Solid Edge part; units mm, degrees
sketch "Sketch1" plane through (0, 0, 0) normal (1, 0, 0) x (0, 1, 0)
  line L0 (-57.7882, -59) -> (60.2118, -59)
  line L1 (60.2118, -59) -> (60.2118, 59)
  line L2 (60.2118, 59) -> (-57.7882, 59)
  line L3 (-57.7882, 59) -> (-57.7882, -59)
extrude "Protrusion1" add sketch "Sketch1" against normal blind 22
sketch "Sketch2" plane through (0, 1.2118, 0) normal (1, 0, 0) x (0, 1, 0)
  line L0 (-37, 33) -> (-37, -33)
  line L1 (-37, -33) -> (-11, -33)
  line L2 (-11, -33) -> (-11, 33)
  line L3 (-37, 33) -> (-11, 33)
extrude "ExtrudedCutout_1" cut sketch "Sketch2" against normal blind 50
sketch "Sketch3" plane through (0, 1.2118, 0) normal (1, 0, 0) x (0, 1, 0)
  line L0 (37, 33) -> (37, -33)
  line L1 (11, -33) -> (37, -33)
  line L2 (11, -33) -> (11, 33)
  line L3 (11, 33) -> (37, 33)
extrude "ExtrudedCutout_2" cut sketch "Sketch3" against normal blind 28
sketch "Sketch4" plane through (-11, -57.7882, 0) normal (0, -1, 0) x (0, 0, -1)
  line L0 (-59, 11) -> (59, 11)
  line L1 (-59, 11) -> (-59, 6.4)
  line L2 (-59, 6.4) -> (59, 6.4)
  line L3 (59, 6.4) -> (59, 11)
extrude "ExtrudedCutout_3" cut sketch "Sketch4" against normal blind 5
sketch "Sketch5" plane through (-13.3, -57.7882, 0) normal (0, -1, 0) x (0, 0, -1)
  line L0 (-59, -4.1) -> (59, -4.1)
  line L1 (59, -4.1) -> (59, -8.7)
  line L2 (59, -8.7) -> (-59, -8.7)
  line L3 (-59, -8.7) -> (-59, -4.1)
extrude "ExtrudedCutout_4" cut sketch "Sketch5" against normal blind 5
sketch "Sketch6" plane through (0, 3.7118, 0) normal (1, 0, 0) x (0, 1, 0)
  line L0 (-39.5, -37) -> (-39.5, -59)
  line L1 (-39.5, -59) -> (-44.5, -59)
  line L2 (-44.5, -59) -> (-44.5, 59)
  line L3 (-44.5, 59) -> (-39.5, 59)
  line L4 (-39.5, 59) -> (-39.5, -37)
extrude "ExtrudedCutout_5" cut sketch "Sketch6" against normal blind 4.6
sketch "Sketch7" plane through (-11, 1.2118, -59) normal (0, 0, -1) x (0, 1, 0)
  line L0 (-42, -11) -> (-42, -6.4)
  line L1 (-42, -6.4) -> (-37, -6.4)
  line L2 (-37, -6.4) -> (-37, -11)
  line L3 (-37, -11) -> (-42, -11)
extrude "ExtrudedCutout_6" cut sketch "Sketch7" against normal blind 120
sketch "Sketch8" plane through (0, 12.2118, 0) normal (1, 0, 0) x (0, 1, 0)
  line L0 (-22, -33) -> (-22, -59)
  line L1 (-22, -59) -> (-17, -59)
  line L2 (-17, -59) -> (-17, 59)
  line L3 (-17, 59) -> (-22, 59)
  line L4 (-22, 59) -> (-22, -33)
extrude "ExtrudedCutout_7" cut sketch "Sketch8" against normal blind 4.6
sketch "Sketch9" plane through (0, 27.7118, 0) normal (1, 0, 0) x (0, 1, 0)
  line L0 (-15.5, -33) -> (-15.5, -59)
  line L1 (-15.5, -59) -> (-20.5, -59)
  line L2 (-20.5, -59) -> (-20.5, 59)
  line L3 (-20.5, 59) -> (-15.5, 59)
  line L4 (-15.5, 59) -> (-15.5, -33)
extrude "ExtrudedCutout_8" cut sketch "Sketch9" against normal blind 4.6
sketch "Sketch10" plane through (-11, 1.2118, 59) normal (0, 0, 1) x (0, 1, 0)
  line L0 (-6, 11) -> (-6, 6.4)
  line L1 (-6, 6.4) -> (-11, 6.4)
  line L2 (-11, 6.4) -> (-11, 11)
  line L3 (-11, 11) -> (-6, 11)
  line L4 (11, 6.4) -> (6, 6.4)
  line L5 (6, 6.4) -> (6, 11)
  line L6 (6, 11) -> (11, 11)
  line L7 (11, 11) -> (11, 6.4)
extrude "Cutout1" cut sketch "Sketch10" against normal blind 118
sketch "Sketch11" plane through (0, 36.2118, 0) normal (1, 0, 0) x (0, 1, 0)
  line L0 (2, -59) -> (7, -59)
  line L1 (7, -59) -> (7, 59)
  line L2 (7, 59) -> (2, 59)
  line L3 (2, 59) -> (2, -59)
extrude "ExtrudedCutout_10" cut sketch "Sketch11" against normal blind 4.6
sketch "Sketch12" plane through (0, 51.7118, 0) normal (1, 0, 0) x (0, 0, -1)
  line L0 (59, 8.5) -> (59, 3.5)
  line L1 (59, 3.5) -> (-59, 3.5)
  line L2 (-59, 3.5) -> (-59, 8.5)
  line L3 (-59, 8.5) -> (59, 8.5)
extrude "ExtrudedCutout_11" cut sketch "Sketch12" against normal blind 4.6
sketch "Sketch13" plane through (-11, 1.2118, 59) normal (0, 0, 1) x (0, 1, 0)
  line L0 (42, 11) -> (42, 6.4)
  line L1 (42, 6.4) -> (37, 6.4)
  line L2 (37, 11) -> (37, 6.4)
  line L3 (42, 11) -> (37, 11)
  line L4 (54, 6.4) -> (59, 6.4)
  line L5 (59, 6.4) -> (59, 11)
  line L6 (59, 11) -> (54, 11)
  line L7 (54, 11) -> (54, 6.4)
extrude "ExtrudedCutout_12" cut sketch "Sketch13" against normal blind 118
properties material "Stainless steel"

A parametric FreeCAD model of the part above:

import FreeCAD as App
import Part
import Sketcher

doc = App.newDocument("Part")
body = doc.addObject("PartDesign::Body", "Body")

sketch1 = body.newObject("Sketcher::SketchObject", "Sketch")
sketch1.AttachmentSupport = (doc.getObject("YZ_Plane"), [""])
sketch1.MapMode = "FlatFace"
sketch1.addGeometry([
    Part.LineSegment(App.Vector(-58, 59, 0), App.Vector(-58, -59, 0)),
    Part.LineSegment(App.Vector(-58, -59, 0), App.Vector(60, -59, 0)),
    Part.LineSegment(App.Vector(60, -59, 0), App.Vector(60, 59, 0)),
    Part.LineSegment(App.Vector(60, 59, 0), App.Vector(-58, 59, 0)),
], False)
sketch1.addConstraint([
    Sketcher.Constraint("Coincident", 0, 2, 1, 1),
    Sketcher.Constraint("Coincident", 1, 2, 2, 1),
    Sketcher.Constraint("Coincident", 2, 2, 3, 1),
    Sketcher.Constraint("Coincident", 3, 2, 0, 1),
    Sketcher.Constraint("Vertical", 0),
    Sketcher.Constraint("Horizontal", 1),
    Sketcher.Constraint("Vertical", 2),
    Sketcher.Constraint("Horizontal", 3),
    Sketcher.Constraint("Equal", 3, 0),
    Sketcher.Constraint("DistanceX", 1, 1, 1, 2, 118.0),
    Sketcher.Constraint("DistanceY", 0, 2, -1, 1, 59.0),
    Sketcher.Constraint("DistanceX", 0, 2, -1, 1, 57.7882),
])
pad1 = body.newObject("PartDesign::Pad", "Pad")
pad1.Profile = sketch1
pad1.Length = 22
pad1.Reversed = True

sketch2 = body.newObject("Sketcher::SketchObject", "Sketch001")
sketch2.AttachmentSupport = (doc.getObject("YZ_Plane"), [""])
sketch2.MapMode = "FlatFace"
sketch2.addGeometry([
    Part.LineSegment(App.Vector(-10, 33, 0), App.Vector(-36, 33, 0)),
    Part.LineSegment(App.Vector(-36, 33, 0), App.Vector(-36, -33, 0)),
    Part.LineSegment(App.Vector(-36, -33, 0), App.Vector(-10, -33, 0)),
    Part.LineSegment(App.Vector(-10, -33, 0), App.Vector(-10, 33, 0)),
], False)
sketch2.addConstraint([
    Sketcher.Constraint("Coincident", 0, 2, 1, 1),
    Sketcher.Constraint("Coincident", 1, 2, 2, 1),
    Sketcher.Constraint("Coincident", 2, 2, 3, 1),
    Sketcher.Constraint("Coincident", 3, 2, 0, 1),
    Sketcher.Constraint("Horizontal", 0),
    Sketcher.Constraint("Vertical", 1),
    Sketcher.Constraint("Horizontal", 2),
    Sketcher.Constraint("Vertical", 3),
    Sketcher.Constraint("DistanceX", 0, 2, 0, 1, 26.0),
    Sketcher.Constraint("DistanceY", 1, 2, 1, 1, 66.0),
    Sketcher.Constraint("DistanceY", -1, 1, 0, 2, 33.0),
    Sketcher.Constraint("DistanceX", 0, 2, -1, 1, 35.7882),
])
pocket1 = body.newObject("PartDesign::Pocket", "Pocket")
pocket1.Profile = sketch2
pocket1.Length = 50

sketch3 = body.newObject("Sketcher::SketchObject", "Sketch002")
sketch3.AttachmentSupport = (doc.getObject("YZ_Plane"), [""])
sketch3.MapMode = "FlatFace"
sketch3.addGeometry([
    Part.LineSegment(App.Vector(38, -33, 0), App.Vector(38, 33, 0)),
    Part.LineSegment(App.Vector(38, 33, 0), App.Vector(12, 33, 0)),
    Part.LineSegment(App.Vector(12, 33, 0), App.Vector(12, -33, 0)),
    Part.LineSegment(App.Vector(12, -33, 0), App.Vector(38, -33, 0)),
], False)
sketch3.addConstraint([
    Sketcher.Constraint("Coincident", 0, 2, 1, 1),
    Sketcher.Constraint("Coincident", 1, 2, 2, 1),
    Sketcher.Constraint("Coincident", 2, 2, 3, 1),
    Sketcher.Constraint("Coincident", 3, 2, 0, 1),
    Sketcher.Constraint("Vertical", 0),
    Sketcher.Constraint("Horizontal", 1),
    Sketcher.Constraint("Vertical", 2),
    Sketcher.Constraint("Horizontal", 3),
    Sketcher.Constraint("DistanceX", 1, 2, 1, 1, 26.0),
    Sketcher.Constraint("DistanceY", 0, 1, 0, 2, 66.0),
    Sketcher.Constraint("DistanceY", -1, 1, 0, 2, 33.0),
    Sketcher.Constraint("DistanceX", -1, 1, 0, 2, 38.2118),
])
pocket2 = body.newObject("PartDesign::Pocket", "Pocket001")
pocket2.Profile = sketch3
pocket2.Length = 28

sketch4 = body.newObject("Sketcher::SketchObject", "Sketch003")
sketch4.AttachmentSupport = (doc.getObject("XZ_Plane"), [""])
sketch4.MapMode = "FlatFace"
sketch4.AttachmentOffset = App.Placement(App.Vector(0, 0, 57.7882), App.Rotation())
sketch4.addGeometry([
    Part.LineSegment(App.Vector(0, -59, 0), App.Vector(0, 59, 0)),
    Part.LineSegment(App.Vector(0, 59, 0), App.Vector(-4.6, 59, 0)),
    Part.LineSegment(App.Vector(-4.6, 59, 0), App.Vector(-4.6, -59, 0)),
    Part.LineSegment(App.Vector(-4.6, -59, 0), App.Vector(0, -59, 0)),
], False)
sketch4.addConstraint([
    Sketcher.Constraint("Coincident", 0, 2, 1, 1),
    Sketcher.Constraint("Coincident", 1, 2, 2, 1),
    Sketcher.Constraint("Coincident", 2, 2, 3, 1),
    Sketcher.Constraint("Coincident", 3, 2, 0, 1),
    Sketcher.Constraint("Vertical", 0),
    Sketcher.Constraint("Horizontal", 1),
    Sketcher.Constraint("Vertical", 2),
    Sketcher.Constraint("Horizontal", 3),
    Sketcher.Constraint("Symmetric", 0, 2, 3, 2, -1, 1),
    Sketcher.Constraint("DistanceY", 0, 1, 0, 2, 118.0),
    Sketcher.Constraint("DistanceX", 1, 2, 1, 1, 4.6),
])
pocket3 = body.newObject("PartDesign::Pocket", "Pocket002")
pocket3.Profile = sketch4
pocket3.Length = 5

sketch5 = body.newObject("Sketcher::SketchObject", "Sketch004")
sketch5.AttachmentSupport = (doc.getObject("XZ_Plane"), [""])
sketch5.MapMode = "FlatFace"
sketch5.AttachmentOffset = App.Placement(App.Vector(0, 0, 57.7882), App.Rotation())
sketch5.addGeometry([
    Part.LineSegment(App.Vector(-17.4, -59, 0), App.Vector(-17.4, 59, 0)),
    Part.LineSegment(App.Vector(-17.4, 59, 0), App.Vector(-22, 59, 0)),
    Part.LineSegment(App.Vector(-22, 59, 0), App.Vector(-22, -59, 0)),
    Part.LineSegment(App.Vector(-22, -59, 0), App.Vector(-17.4, -59, 0)),
], False)
sketch5.addConstraint([
    Sketcher.Constraint("Coincident", 0, 2, 1, 1),
    Sketcher.Constraint("Coincident", 1, 2, 2, 1),
    Sketcher.Constraint("Coincident", 2, 2, 3, 1),
    Sketcher.Constraint("Coincident", 3, 2, 0, 1),
    Sketcher.Constraint("Vertical", 0),
    Sketcher.Constraint("Horizontal", 1),
    Sketcher.Constraint("Vertical", 2),
    Sketcher.Constraint("Horizontal", 3),
    Sketcher.Constraint("DistanceY", 0, 1, 0, 2, 118.0),
    Sketcher.Constraint("DistanceX", 1, 2, 1, 1, 4.6),
    Sketcher.Constraint("DistanceY", -1, 1, 0, 2, 59.0),
    Sketcher.Constraint("DistanceX", 1, 2, -1, 1, 22.0),
])
pocket4 = body.newObject("PartDesign::Pocket", "Pocket003")
pocket4.Profile = sketch5
pocket4.Length = 5

sketch6 = body.newObject("Sketcher::SketchObject", "Sketch005")
sketch6.AttachmentSupport = (doc.getObject("YZ_Plane"), [""])
sketch6.MapMode = "FlatFace"
sketch6.addGeometry([
    Part.LineSegment(App.Vector(-36, -59, 0), App.Vector(-36, 59, 0)),
    Part.LineSegment(App.Vector(-36, 59, 0), App.Vector(-41, 59, 0)),
    Part.LineSegment(App.Vector(-41, 59, 0), App.Vector(-41, -59, 0)),
    Part.LineSegment(App.Vector(-41, -59, 0), App.Vector(-36, -59, 0)),
], False)
sketch6.addConstraint([
    Sketcher.Constraint("Coincident", 0, 2, 1, 1),
    Sketcher.Constraint("Coincident", 1, 2, 2, 1),
    Sketcher.Constraint("Coincident", 2, 2, 3, 1),
    Sketcher.Constraint("Coincident", 3, 2, 0, 1),
    Sketcher.Constraint("Vertical", 0),
    Sketcher.Constraint("Horizontal", 1),
    Sketcher.Constraint("Vertical", 2),
    Sketcher.Constraint("Horizontal", 3),
    Sketcher.Constraint("DistanceX", 1, 2, 1, 1, 5.0),
    Sketcher.Constraint("DistanceY", 0, 1, 0, 2, 118.0),
    Sketcher.Constraint("DistanceY", -1, 1, 0, 2, 59.0),
    Sketcher.Constraint("DistanceX", 0, 2, -1, 1, 35.7882),
])
pocket5 = body.newObject("PartDesign::Pocket", "Pocket004")
pocket5.Profile = sketch6
pocket5.Length = 4.6

sketch7 = body.newObject("Sketcher::SketchObject", "Sketch006")
sketch7.AttachmentSupport = (doc.getObject("XY_Plane"), [""])
sketch7.MapMode = "FlatFace"
sketch7.AttachmentOffset = App.Placement(App.Vector(0, 0, -59), App.Rotation())
sketch7.addGeometry([
    Part.LineSegment(App.Vector(-17.4, -40.8, 0), App.Vector(-22, -40.8, 0)),
    Part.LineSegment(App.Vector(-22, -40.8, 0), App.Vector(-22, -35.8, 0)),
    Part.LineSegment(App.Vector(-22, -35.8, 0), App.Vector(-17.4, -35.8, 0)),
    Part.LineSegment(App.Vector(-17.4, -35.8, 0), App.Vector(-17.4, -40.8, 0)),
], False)
sketch7.addConstraint([
    Sketcher.Constraint("Coincident", 0, 2, 1, 1),
    Sketcher.Constraint("Coincident", 1, 2, 2, 1),
    Sketcher.Constraint("Coincident", 2, 2, 3, 1),
    Sketcher.Constraint("Coincident", 3, 2, 0, 1),
    Sketcher.Constraint("Horizontal", 0),
    Sketcher.Constraint("Vertical", 1),
    Sketcher.Constraint("Horizontal", 2),
    Sketcher.Constraint("Vertical", 3),
    Sketcher.Constraint("DistanceY", 1, 1, 1, 2, 5.0),
    Sketcher.Constraint("DistanceX", 0, 2, 0, 1, 4.6),
    Sketcher.Constraint("DistanceX", 0, 2, -1, 1, 22.0),
    Sketcher.Constraint("DistanceY", 0, 2, -1, 1, 40.7882),
])
pocket6 = body.newObject("PartDesign::Pocket", "Pocket005")
pocket6.Profile = sketch7
pocket6.Length = 120
pocket6.Reversed = True

sketch8 = body.newObject("Sketcher::SketchObject", "Sketch007")
sketch8.AttachmentSupport = (doc.getObject("YZ_Plane"), [""])
sketch8.MapMode = "FlatFace"
sketch8.addGeometry([
    Part.LineSegment(App.Vector(-10, 59, 0), App.Vector(-10, -59, 0)),
    Part.LineSegment(App.Vector(-10, -59, 0), App.Vector(-5, -59, 0)),
    Part.LineSegment(App.Vector(-5, -59, 0), App.Vector(-5, 59, 0)),
    Part.LineSegment(App.Vector(-5, 59, 0), App.Vector(-10, 59, 0)),
], False)
sketch8.addConstraint([
    Sketcher.Constraint("Coincident", 0, 2, 1, 1),
    Sketcher.Constraint("Coincident", 1, 2, 2, 1),
    Sketcher.Constraint("Coincident", 2, 2, 3, 1),
    Sketcher.Constraint("Coincident", 3, 2, 0, 1),
    Sketcher.Constraint("Vertical", 0),
    Sketcher.Constraint("Horizontal", 1),
    Sketcher.Constraint("Vertical", 2),
    Sketcher.Constraint("Horizontal", 3),
    Sketcher.Constraint("DistanceX", 1, 1, 1, 2, 5.0),
    Sketcher.Constraint("DistanceY", 0, 2, 0, 1, 118.0),
    Sketcher.Constraint("DistanceY", 0, 2, -1, 1, 59.0),
    Sketcher.Constraint("DistanceX", 0, 2, -1, 1, 9.7882),
])
pocket7 = body.newObject("PartDesign::Pocket", "Pocket006")
pocket7.Profile = sketch8
pocket7.Length = 4.6

sketch9 = body.newObject("Sketcher::SketchObject", "Sketch008")
sketch9.AttachmentSupport = (doc.getObject("YZ_Plane"), [""])
sketch9.MapMode = "FlatFace"
sketch9.addGeometry([
    Part.LineSegment(App.Vector(12, -59, 0), App.Vector(12, 59, 0)),
    Part.LineSegment(App.Vector(12, 59, 0), App.Vector(7, 59, 0)),
    Part.LineSegment(App.Vector(7, 59, 0), App.Vector(7, -59, 0)),
    Part.LineSegment(App.Vector(7, -59, 0), App.Vector(12, -59, 0)),
], False)
sketch9.addConstraint([
    Sketcher.Constraint("Coincident", 0, 2, 1, 1),
    Sketcher.Constraint("Coincident", 1, 2, 2, 1),
    Sketcher.Constraint("Coincident", 2, 2, 3, 1),
    Sketcher.Constraint("Coincident", 3, 2, 0, 1),
    Sketcher.Constraint("Vertical", 0),
    Sketcher.Constraint("Horizontal", 1),
    Sketcher.Constraint("Vertical", 2),
    Sketcher.Constraint("Horizontal", 3),
    Sketcher.Constraint("DistanceX", 1, 2, 1, 1, 5.0),
    Sketcher.Constraint("DistanceY", 0, 1, 0, 2, 118.0),
    Sketcher.Constraint("DistanceY", -1, 1, 0, 2, 59.0),
    Sketcher.Constraint("DistanceX", -1, 1, 0, 2, 12.2118),
])
pocket8 = body.newObject("PartDesign::Pocket", "Pocket007")
pocket8.Profile = sketch9
pocket8.Length = 4.6

sketch10 = body.newObject("Sketcher::SketchObject", "Sketch009")
sketch10.AttachmentSupport = (doc.getObject("XY_Plane"), [""])
sketch10.MapMode = "FlatFace"
sketch10.AttachmentOffset = App.Placement(App.Vector(0, 0, 59), App.Rotation())
sketch10.addGeometry([
    Part.LineSegment(App.Vector(-17.4, -4.8, 0), App.Vector(-22, -4.8, 0)),
    Part.LineSegment(App.Vector(-22, -4.8, 0), App.Vector(-22, -9.8, 0)),
    Part.LineSegment(App.Vector(-22, -9.8, 0), App.Vector(-17.4, -9.8, 0)),
    Part.LineSegment(App.Vector(-17.4, -9.8, 0), App.Vector(-17.4, -4.8, 0)),
    Part.LineSegment(App.Vector(-17.4, 7.2, 0), App.Vector(-17.4, 12.2, 0)),
    Part.LineSegment(App.Vector(-17.4, 12.2, 0), App.Vector(-22, 12.2, 0)),
    Part.LineSegment(App.Vector(-22, 12.2, 0), App.Vector(-22, 7.2, 0)),
    Part.LineSegment(App.Vector(-22, 7.2, 0), App.Vector(-17.4, 7.2, 0)),
], False)
sketch10.addConstraint([
    Sketcher.Constraint("Coincident", 0, 2, 1, 1),
    Sketcher.Constraint("Coincident", 1, 2, 2, 1),
    Sketcher.Constraint("Coincident", 2, 2, 3, 1),
    Sketcher.Constraint("Coincident", 3, 2, 0, 1),
    Sketcher.Constraint("Coincident", 4, 2, 5, 1),
    Sketcher.Constraint("Coincident", 5, 2, 6, 1),
    Sketcher.Constraint("Coincident", 6, 2, 7, 1),
    Sketcher.Constraint("Coincident", 7, 2, 4, 1),
    Sketcher.Constraint("Horizontal", 0),
    Sketcher.Constraint("Vertical", 1),
    Sketcher.Constraint("Horizontal", 2),
    Sketcher.Constraint("Vertical", 3),
    Sketcher.Constraint("Vertical", 4),
    Sketcher.Constraint("Horizontal", 5),
    Sketcher.Constraint("Vertical", 6),
    Sketcher.Constraint("Horizontal", 7),
    Sketcher.Constraint("Vertical", 3, 2, 4, 2),
    Sketcher.Constraint("Vertical", 1, 2, 5, 2),
    Sketcher.Constraint("Equal", 3, 4),
    Sketcher.Constraint("DistanceY", 1, 2, 1, 1, 5.0),
    Sketcher.Constraint("DistanceX", 0, 2, 0, 1, 4.6),
    Sketcher.Constraint("DistanceX", 0, 2, -1, 1, 22.0),
    Sketcher.Constraint("DistanceY", 3, 2, 4, 2, 17.0),
    Sketcher.Constraint("DistanceY", 0, 2, -1, 1, 4.7882),
])
pocket9 = body.newObject("PartDesign::Pocket", "Pocket008")
pocket9.Profile = sketch10
pocket9.Length = 118

sketch11 = body.newObject("Sketcher::SketchObject", "Sketch010")
sketch11.AttachmentSupport = (doc.getObject("YZ_Plane"), [""])
sketch11.MapMode = "FlatFace"
sketch11.addGeometry([
    Part.LineSegment(App.Vector(38, 59, 0), App.Vector(38, -59, 0)),
    Part.LineSegment(App.Vector(38, -59, 0), App.Vector(43, -59, 0)),
    Part.LineSegment(App.Vector(43, -59, 0), App.Vector(43, 59, 0)),
    Part.LineSegment(App.Vector(43, 59, 0), App.Vector(38, 59, 0)),
], False)
sketch11.addConstraint([
    Sketcher.Constraint("Coincident", 0, 2, 1, 1),
    Sketcher.Constraint("Coincident", 1, 2, 2, 1),
    Sketcher.Constraint("Coincident", 2, 2, 3, 1),
    Sketcher.Constraint("Coincident", 3, 2, 0, 1),
    Sketcher.Constraint("Vertical", 0),
    Sketcher.Constraint("Horizontal", 1),
    Sketcher.Constraint("Vertical", 2),
    Sketcher.Constraint("Horizontal", 3),
    Sketcher.Constraint("DistanceX", 1, 1, 1, 2, 5.0),
    Sketcher.Constraint("DistanceY", 0, 2, 0, 1, 118.0),
    Sketcher.Constraint("DistanceY", 0, 2, -1, 1, 59.0),
    Sketcher.Constraint("DistanceX", -1, 1, 0, 2, 38.2118),
])
pocket10 = body.newObject("PartDesign::Pocket", "Pocket009")
pocket10.Profile = sketch11
pocket10.Length = 4.6

sketch12 = body.newObject("Sketcher::SketchObject", "Sketch011")
sketch12.AttachmentSupport = (doc.getObject("YZ_Plane"), [""])
sketch12.MapMode = "FlatFace"
sketch12.addGeometry([
    Part.LineSegment(App.Vector(55, -59, 0), App.Vector(60, -59, 0)),
    Part.LineSegment(App.Vector(60, -59, 0), App.Vector(60, 59, 0)),
    Part.LineSegment(App.Vector(60, 59, 0), App.Vector(55, 59, 0)),
    Part.LineSegment(App.Vector(55, 59, 0), App.Vector(55, -59, 0)),
], False)
sketch12.addConstraint([
    Sketcher.Constraint("Coincident", 0, 2, 1, 1),
    Sketcher.Constraint("Coincident", 1, 2, 2, 1),
    Sketcher.Constraint("Coincident", 2, 2, 3, 1),
    Sketcher.Constraint("Coincident", 3, 2, 0, 1),
    Sketcher.Constraint("Horizontal", 0),
    Sketcher.Constraint("Vertical", 1),
    Sketcher.Constraint("Horizontal", 2),
    Sketcher.Constraint("Vertical", 3),
    Sketcher.Constraint("DistanceX", 0, 1, 0, 2, 5.0),
    Sketcher.Constraint("DistanceY", 1, 1, 1, 2, 118.0),
    Sketcher.Constraint("DistanceY", 0, 2, -1, 1, 59.0),
    Sketcher.Constraint("DistanceX", -1, 1, 0, 2, 60.2118),
])
pocket11 = body.newObject("PartDesign::Pocket", "Pocket010")
pocket11.Profile = sketch12
pocket11.Length = 4.6

sketch13 = body.newObject("Sketcher::SketchObject", "Sketch012")
sketch13.AttachmentSupport = (doc.getObject("XY_Plane"), [""])
sketch13.MapMode = "FlatFace"
sketch13.AttachmentOffset = App.Placement(App.Vector(0, 0, 59), App.Rotation())
sketch13.addGeometry([
    Part.LineSegment(App.Vector(-17.4, 43.2, 0), App.Vector(-22, 43.2, 0)),
    Part.LineSegment(App.Vector(-22, 43.2, 0), App.Vector(-22, 38.2, 0)),
    Part.LineSegment(App.Vector(-22, 38.2, 0), App.Vector(-17.4, 38.2, 0)),
    Part.LineSegment(App.Vector(-17.4, 38.2, 0), App.Vector(-17.4, 43.2, 0)),
    Part.LineSegment(App.Vector(-22, 55.2, 0), App.Vector(-17.4, 55.2, 0)),
    Part.LineSegment(App.Vector(-17.4, 55.2, 0), App.Vector(-17.4, 60.2, 0)),
    Part.LineSegment(App.Vector(-17.4, 60.2, 0), App.Vector(-22, 60.2, 0)),
    Part.LineSegment(App.Vector(-22, 60.2, 0), App.Vector(-22, 55.2, 0)),
], False)
sketch13.addConstraint([
    Sketcher.Constraint("Coincident", 0, 2, 1, 1),
    Sketcher.Constraint("Coincident", 1, 2, 2, 1),
    Sketcher.Constraint("Coincident", 2, 2, 3, 1),
    Sketcher.Constraint("Coincident", 3, 2, 0, 1),
    Sketcher.Constraint("Coincident", 4, 2, 5, 1),
    Sketcher.Constraint("Coincident", 5, 2, 6, 1),
    Sketcher.Constraint("Coincident", 6, 2, 7, 1),
    Sketcher.Constraint("Coincident", 7, 2, 4, 1),
    Sketcher.Constraint("Horizontal", 0),
    Sketcher.Constraint("Vertical", 1),
    Sketcher.Constraint("Horizontal", 2),
    Sketcher.Constraint("Vertical", 3),
    Sketcher.Constraint("Horizontal", 4),
    Sketcher.Constraint("Vertical", 5),
    Sketcher.Constraint("Horizontal", 6),
    Sketcher.Constraint("Vertical", 7),
    Sketcher.Constraint("Vertical", 3, 2, 4, 2),
    Sketcher.Constraint("Vertical", 1, 2, 6, 2),
    Sketcher.Constraint("Equal", 3, 5),
    Sketcher.Constraint("DistanceY", 1, 2, 1, 1, 5.0),
    Sketcher.Constraint("DistanceX", 0, 2, 0, 1, 4.6),
    Sketcher.Constraint("DistanceX", 0, 2, -1, 1, 22.0),
    Sketcher.Constraint("DistanceY", 3, 2, 4, 2, 12.0),
    Sketcher.Constraint("DistanceY", -1, 1, 0, 2, 43.2118),
])
pocket12 = body.newObject("PartDesign::Pocket", "Pocket011")
pocket12.Profile = sketch13
pocket12.Length = 118

doc.recompute()
